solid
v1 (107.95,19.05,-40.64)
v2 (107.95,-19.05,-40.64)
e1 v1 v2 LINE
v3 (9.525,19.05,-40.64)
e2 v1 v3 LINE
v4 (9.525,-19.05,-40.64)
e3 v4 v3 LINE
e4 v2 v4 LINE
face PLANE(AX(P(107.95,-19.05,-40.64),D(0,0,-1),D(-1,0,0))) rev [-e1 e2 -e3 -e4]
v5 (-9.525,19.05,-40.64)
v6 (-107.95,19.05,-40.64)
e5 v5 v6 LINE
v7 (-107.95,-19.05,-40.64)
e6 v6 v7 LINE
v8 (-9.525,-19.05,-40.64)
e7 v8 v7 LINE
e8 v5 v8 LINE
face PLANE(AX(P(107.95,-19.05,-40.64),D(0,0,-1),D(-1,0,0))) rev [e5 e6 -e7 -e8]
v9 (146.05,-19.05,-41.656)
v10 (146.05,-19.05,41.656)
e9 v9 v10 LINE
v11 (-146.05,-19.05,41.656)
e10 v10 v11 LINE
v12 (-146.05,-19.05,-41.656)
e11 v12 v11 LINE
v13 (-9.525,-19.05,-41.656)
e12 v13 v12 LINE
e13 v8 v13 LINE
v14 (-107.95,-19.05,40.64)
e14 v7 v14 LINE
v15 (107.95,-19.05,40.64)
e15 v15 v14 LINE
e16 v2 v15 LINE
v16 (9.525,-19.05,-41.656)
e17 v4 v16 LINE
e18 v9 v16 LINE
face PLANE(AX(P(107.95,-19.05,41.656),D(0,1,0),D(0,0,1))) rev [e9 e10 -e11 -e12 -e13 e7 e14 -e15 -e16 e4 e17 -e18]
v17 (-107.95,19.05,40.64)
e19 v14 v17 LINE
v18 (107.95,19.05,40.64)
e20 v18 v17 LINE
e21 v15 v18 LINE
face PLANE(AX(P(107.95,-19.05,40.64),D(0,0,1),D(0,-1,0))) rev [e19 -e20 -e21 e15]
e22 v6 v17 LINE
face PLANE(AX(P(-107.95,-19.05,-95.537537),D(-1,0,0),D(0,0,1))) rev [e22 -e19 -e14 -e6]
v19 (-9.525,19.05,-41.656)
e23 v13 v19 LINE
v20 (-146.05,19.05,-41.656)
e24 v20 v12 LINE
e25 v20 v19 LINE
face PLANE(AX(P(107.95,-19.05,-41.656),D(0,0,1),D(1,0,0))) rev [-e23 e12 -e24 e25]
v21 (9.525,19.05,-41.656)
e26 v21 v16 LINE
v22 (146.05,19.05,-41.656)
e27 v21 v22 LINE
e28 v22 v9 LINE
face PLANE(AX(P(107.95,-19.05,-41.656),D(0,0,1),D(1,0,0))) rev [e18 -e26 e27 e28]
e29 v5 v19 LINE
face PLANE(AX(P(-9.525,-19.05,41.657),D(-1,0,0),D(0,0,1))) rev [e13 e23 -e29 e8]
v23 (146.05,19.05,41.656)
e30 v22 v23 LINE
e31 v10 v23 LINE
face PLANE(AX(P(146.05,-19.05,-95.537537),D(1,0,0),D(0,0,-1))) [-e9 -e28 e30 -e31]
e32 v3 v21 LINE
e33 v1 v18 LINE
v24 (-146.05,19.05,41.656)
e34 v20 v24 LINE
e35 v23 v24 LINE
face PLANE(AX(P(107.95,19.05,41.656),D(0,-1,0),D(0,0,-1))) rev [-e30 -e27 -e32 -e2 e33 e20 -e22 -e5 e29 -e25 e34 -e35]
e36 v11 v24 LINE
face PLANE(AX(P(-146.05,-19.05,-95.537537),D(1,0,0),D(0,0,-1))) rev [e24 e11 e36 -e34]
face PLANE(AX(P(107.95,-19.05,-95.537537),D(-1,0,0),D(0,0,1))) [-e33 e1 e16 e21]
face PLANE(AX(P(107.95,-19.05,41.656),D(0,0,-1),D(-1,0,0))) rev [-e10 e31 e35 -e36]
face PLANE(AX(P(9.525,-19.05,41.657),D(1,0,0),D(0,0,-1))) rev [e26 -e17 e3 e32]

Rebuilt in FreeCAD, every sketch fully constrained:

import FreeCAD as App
import Part
import Sketcher
from FreeCAD import Vector
Q = App.Units.Quantity

doc = App.newDocument("Part")
body = doc.addObject("PartDesign::Body", "Body")

sketch1 = body.newObject("Sketcher::SketchObject", "Sketch")
sketch1.AttachmentSupport = (doc.getObject("YZ_Plane"), [""])
sketch1.MapMode = "FlatFace"
sketch1.addGeometry(Part.LineSegment(Vector(19.1, -40.6, 0), Vector(-19.1, -40.6, 0)), False)
sketch1.addGeometry(Part.LineSegment(Vector(-19.1, -40.6, 0), Vector(-19.1, -41.7, 0)), False)
sketch1.addGeometry(Part.LineSegment(Vector(-19.1, -41.7, 0), Vector(19.1, -41.7, 0)), False)
sketch1.addGeometry(Part.LineSegment(Vector(19.1, -41.7, 0), Vector(19.1, -40.6, 0)), False)
sketch1.addConstraint(Sketcher.Constraint("Coincident", 0, 2, 1, 1))
sketch1.addConstraint(Sketcher.Constraint("Coincident", 1, 2, 2, 1))
sketch1.addConstraint(Sketcher.Constraint("Coincident", 2, 2, 3, 1))
sketch1.addConstraint(Sketcher.Constraint("Coincident", 3, 2, 0, 1))
sketch1.addConstraint(Sketcher.Constraint("Horizontal", 0))
sketch1.addConstraint(Sketcher.Constraint("Vertical", 1))
sketch1.addConstraint(Sketcher.Constraint("Horizontal", 2))
sketch1.addConstraint(Sketcher.Constraint("Vertical", 3))
sketch1.addConstraint(Sketcher.Constraint("DistanceX", 0, 2, 0, 1, Q("1.5 in")))
sketch1.addConstraint(Sketcher.Constraint("DistanceY", 1, 2, 1, 1, Q("0.04 in")))
sketch1.addConstraint(Sketcher.Constraint("DistanceY", 0, 2, -1, 1, Q("1.6 in")))
sketch1.addConstraint(Sketcher.Constraint("DistanceX", 0, 2, -1, 1, Q("0.75 in")))
pad1 = body.newObject("PartDesign::Pad", "Pad")
pad1.Profile = sketch1
pad1.Length = Q("8.5 in")
pad1.Midplane = True
body2 = doc.addObject("PartDesign::Body", "Body001")

sketch2 = body2.newObject("Sketcher::SketchObject", "Sketch001")
sketch2.AttachmentSupport = (doc.getObject("YZ_Plane001"), [""])
sketch2.MapMode = "FlatFace"
sketch2.addGeometry(Part.LineSegment(Vector(19.1, 41.7, 0), Vector(-19.1, 41.7, 0)), False)
sketch2.addGeometry(Part.LineSegment(Vector(-19.1, 41.7, 0), Vector(-19.1, 40.6, 0)), False)
sketch2.addGeometry(Part.LineSegment(Vector(-19.1, 40.6, 0), Vector(19.1, 40.6, 0)), False)
sketch2.addGeometry(Part.LineSegment(Vector(19.1, 40.6, 0), Vector(19.1, 41.7, 0)), False)
sketch2.addConstraint(Sketcher.Constraint("Coincident", 0, 2, 1, 1))
sketch2.addConstraint(Sketcher.Constraint("Coincident", 1, 2, 2, 1))
sketch2.addConstraint(Sketcher.Constraint("Coincident", 2, 2, 3, 1))
sketch2.addConstraint(Sketcher.Constraint("Coincident", 3, 2, 0, 1))
sketch2.addConstraint(Sketcher.Constraint("Horizontal", 0))
sketch2.addConstraint(Sketcher.Constraint("Vertical", 1))
sketch2.addConstraint(Sketcher.Constraint("Horizontal", 2))
sketch2.addConstraint(Sketcher.Constraint("Vertical", 3))
sketch2.addConstraint(Sketcher.Constraint("DistanceX", 0, 2, 0, 1, Q("1.5 in")))
sketch2.addConstraint(Sketcher.Constraint("DistanceY", 1, 2, 1, 1, Q("0.04 in")))
sketch2.addConstraint(Sketcher.Constraint("DistanceY", -1, 1, 1, 2, Q("1.6 in")))
sketch2.addConstraint(Sketcher.Constraint("DistanceX", 0, 2, -1, 1, Q("0.75 in")))
pad2 = body2.newObject("PartDesign::Pad", "Pad001")
pad2.Profile = sketch2
pad2.Length = Q("8.5 in")
pad2.Midplane = True
body.AllowCompound = True
doc.recompute()

boolean = body.newObject("PartDesign::Boolean", "Boolean")
boolean.Type = "Fuse"
boolean.addObjects([body2])

sketch3 = body.newObject("Sketcher::SketchObject", "Sketch002")
sketch3.AttachmentSupport = (doc.getObject("XY_Plane"), [""])
sketch3.MapMode = "FlatFace"
sketch3.AttachmentOffset = App.Placement(Vector(0, 0, 1.64 * 25.4), App.Rotation())
sketch3.addGeometry(Part.LineSegment(Vector(108, 19, 0), Vector(108, -19, 0)), False)
sketch3.addGeometry(Part.LineSegment(Vector(108, -19, 0), Vector(146, -19, 0)), False)
sketch3.addGeometry(Part.LineSegment(Vector(146, -19, 0), Vector(146, 19, 0)), False)
sketch3.addGeometry(Part.LineSegment(Vector(146, 19, 0), Vector(108, 19, 0)), False)
sketch3.addConstraint(Sketcher.Constraint("Coincident", 0, 2, 1, 1))
sketch3.addConstraint(Sketcher.Constraint("Coincident", 1, 2, 2, 1))
sketch3.addConstraint(Sketcher.Constraint("Coincident", 2, 2, 3, 1))
sketch3.addConstraint(Sketcher.Constraint("Coincident", 3, 2, 0, 1))
sketch3.addConstraint(Sketcher.Constraint("Vertical", 0))
sketch3.addConstraint(Sketcher.Constraint("Horizontal", 1))
sketch3.addConstraint(Sketcher.Constraint("Vertical", 2))
sketch3.addConstraint(Sketcher.Constraint("Horizontal", 3))
sketch3.addConstraint(Sketcher.Constraint("Equal", 3, 0))
sketch3.addConstraint(Sketcher.Constraint("DistanceX", 1, 1, 1, 2, Q("1.5 in")))
sketch3.addConstraint(Sketcher.Constraint("DistanceX", -1, 1, 0, 2, Q("4.25 in")))
sketch3.addConstraint(Sketcher.Constraint("DistanceY", 0, 2, -1, 1, Q("0.75 in")))
pad3 = body.newObject("PartDesign::Pad", "Pad002")
pad3.Profile = sketch3
pad3.Length = Q("3.28 in")
pad3.Reversed = True
doc.recompute()

mirrored = body.newObject("PartDesign::Mirrored", "Mirrored")
mirrored.Originals = [pad3]
mirrored.MirrorPlane = (doc.getObject("YZ_Plane"), [""])
body.Tip = mirrored

sketch4 = body.newObject("Sketcher::SketchObject", "Sketch003")
sketch4.AttachmentSupport = (doc.getObject("XY_Plane"), [""])
sketch4.MapMode = "FlatFace"
sketch4.AttachmentOffset = App.Placement(Vector(0, 0, -1.64 * 25.4), App.Rotation())
sketch4.addGeometry(Part.LineSegment(Vector(10, 19, 0), Vector(10, -19, 0)), False)
sketch4.addGeometry(Part.LineSegment(Vector(10, -19, 0), Vector(-10, -19, 0)), False)
sketch4.addGeometry(Part.LineSegment(Vector(-10, -19, 0), Vector(-10, 19, 0)), False)
sketch4.addGeometry(Part.LineSegment(Vector(-10, 19, 0), Vector(10, 19, 0)), False)
sketch4.addConstraint(Sketcher.Constraint("Coincident", 0, 2, 1, 1))
sketch4.addConstraint(Sketcher.Constraint("Coincident", 1, 2, 2, 1))
sketch4.addConstraint(Sketcher.Constraint("Coincident", 2, 2, 3, 1))
sketch4.addConstraint(Sketcher.Constraint("Coincident", 3, 2, 0, 1))
sketch4.addConstraint(Sketcher.Constraint("Vertical", 0))
sketch4.addConstraint(Sketcher.Constraint("Horizontal", 1))
sketch4.addConstraint(Sketcher.Constraint("Vertical", 2))
sketch4.addConstraint(Sketcher.Constraint("Horizontal", 3))
sketch4.addConstraint(Sketcher.Constraint("Symmetric", 0, 2, 2, 2, -1, 1))
sketch4.addConstraint(Sketcher.Constraint("DistanceY", 0, 2, 0, 1, Q("1.5 in")))
sketch4.addConstraint(Sketcher.Constraint("DistanceX", 1, 2, 1, 1, Q("0.75 in")))
pocket1 = body.newObject("PartDesign::Pocket", "Pocket")
pocket1.Profile = sketch4
pocket1.Type = "UpToFirst"
pocket1.Reversed = True

doc.recompute()
